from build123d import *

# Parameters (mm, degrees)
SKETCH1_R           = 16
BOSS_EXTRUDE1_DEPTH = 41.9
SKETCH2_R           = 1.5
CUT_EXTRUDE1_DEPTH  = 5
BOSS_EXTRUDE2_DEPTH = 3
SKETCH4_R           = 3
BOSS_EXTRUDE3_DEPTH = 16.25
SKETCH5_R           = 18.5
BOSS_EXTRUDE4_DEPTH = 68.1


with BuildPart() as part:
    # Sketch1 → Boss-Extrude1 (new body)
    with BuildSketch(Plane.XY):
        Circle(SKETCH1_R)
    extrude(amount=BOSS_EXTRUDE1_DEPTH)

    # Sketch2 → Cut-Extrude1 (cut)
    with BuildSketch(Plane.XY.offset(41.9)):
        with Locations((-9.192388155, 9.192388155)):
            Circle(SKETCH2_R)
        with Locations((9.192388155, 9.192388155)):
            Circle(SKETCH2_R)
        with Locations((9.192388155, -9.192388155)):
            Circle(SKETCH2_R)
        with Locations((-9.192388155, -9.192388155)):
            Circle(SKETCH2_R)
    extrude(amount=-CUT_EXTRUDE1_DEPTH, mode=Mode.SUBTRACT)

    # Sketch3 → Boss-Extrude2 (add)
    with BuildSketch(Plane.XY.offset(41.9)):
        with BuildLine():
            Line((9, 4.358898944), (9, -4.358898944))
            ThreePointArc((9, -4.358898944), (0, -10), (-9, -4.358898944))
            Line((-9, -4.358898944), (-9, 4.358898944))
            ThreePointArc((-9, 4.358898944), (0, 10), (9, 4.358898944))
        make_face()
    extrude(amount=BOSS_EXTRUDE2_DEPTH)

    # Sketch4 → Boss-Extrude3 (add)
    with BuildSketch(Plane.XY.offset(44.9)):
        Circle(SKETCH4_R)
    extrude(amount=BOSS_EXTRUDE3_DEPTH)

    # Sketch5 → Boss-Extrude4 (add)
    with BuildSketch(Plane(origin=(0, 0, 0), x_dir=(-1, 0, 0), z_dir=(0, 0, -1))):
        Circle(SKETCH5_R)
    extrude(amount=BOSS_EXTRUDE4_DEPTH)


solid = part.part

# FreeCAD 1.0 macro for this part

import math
import FreeCAD as App
import Part
import Sketcher

doc = App.newDocument("Part")
body = doc.addObject("PartDesign::Body", "Body")

# Sketch on XY plane
sketch1 = body.newObject("Sketcher::SketchObject", "Sketch")
sketch1.AttachmentSupport = (doc.getObject("XY_Plane"), [""])
sketch1.MapMode = "FlatFace"
sketch1.addGeometry(Part.Circle(App.Vector(0, 0, 0), App.Vector(0, 0, 1), 16), False)
sketch1.addConstraint([
    Sketcher.Constraint("Coincident", 0, 3, -1, 1),
    Sketcher.Constraint("Diameter", 0, 32.0),
])
pad1 = body.newObject("PartDesign::Pad", "Pad")
pad1.Profile = sketch1
pad1.Length = 41.9

# Sketch on XY plane
sketch2 = body.newObject("Sketcher::SketchObject", "Sketch001")
sketch2.AttachmentSupport = (doc.getObject("XY_Plane"), [""])
sketch2.MapMode = "FlatFace"
sketch2.AttachmentOffset = App.Placement(App.Vector(0, 0, 41.9), App.Rotation())
sketch2.addGeometry([
    Part.Circle(App.Vector(-9.192388, 9.192388, 0), App.Vector(0, 0, 1), 1.5),
    Part.Circle(App.Vector(9.192388, 9.192388, 0), App.Vector(0, 0, 1), 1.5),
    Part.Circle(App.Vector(9.192388, -9.192388, 0), App.Vector(0, 0, 1), 1.5),
    Part.Circle(App.Vector(-9.192388, -9.192388, 0), App.Vector(0, 0, 1), 1.5),
], False)
sketch2.addConstraint([
    Sketcher.Constraint("Equal", 0, 1),
    Sketcher.Constraint("Equal", 1, 2),
    Sketcher.Constraint("Equal", 2, 3),
    Sketcher.Constraint("Symmetric", 0, 3, 2, 3, -1, 1),
    Sketcher.Constraint("Symmetric", 1, 3, 3, 3, -1, 1),
    Sketcher.Constraint("Symmetric", 0, 3, 1, 3, -2),
    Sketcher.Constraint("Diameter", 0, 3.0),
    Sketcher.Constraint("DistanceX", 0, 3, -1, 1, 9.192388),
    Sketcher.Constraint("DistanceY", -1, 1, 0, 3, 9.192388),
])
pocket1 = body.newObject("PartDesign::Pocket", "Pocket")
pocket1.Profile = sketch2
pocket1.Length = 5

# Sketch on XY plane
sketch3 = body.newObject("Sketcher::SketchObject", "Sketch002")
sketch3.AttachmentSupport = (doc.getObject("XY_Plane"), [""])
sketch3.MapMode = "FlatFace"
sketch3.AttachmentOffset = App.Placement(App.Vector(0, 0, 41.9), App.Rotation())
sketch3.addGeometry([
    Part.LineSegment(App.Vector(9, -4.358899, 0), App.Vector(9, 4.358899, 0)),
    Part.ArcOfCircle(Part.Circle(App.Vector(0, 0, 0), App.Vector(0, 0, 1), 10), math.radians(25.841933), math.radians(154.158067)),
    Part.LineSegment(App.Vector(-9, 4.358899, 0), App.Vector(-9, -4.358899, 0)),
    Part.ArcOfCircle(Part.Circle(App.Vector(0, 0, 0), App.Vector(0, 0, 1), 10), math.radians(-154.158067), math.radians(-25.841933)),
], False)
sketch3.addConstraint([
    Sketcher.Constraint("Coincident", 0, 2, 1, 1),
    Sketcher.Constraint("Coincident", 1, 2, 2, 1),
    Sketcher.Constraint("Coincident", 2, 2, 3, 1),
    Sketcher.Constraint("Coincident", 3, 2, 0, 1),
    Sketcher.Constraint("Vertical", 0),
    Sketcher.Constraint("Vertical", 2),
    Sketcher.Constraint("Coincident", 1, 3, -1, 1),
    Sketcher.Constraint("Coincident", 3, 3, -1, 1),
    Sketcher.Constraint("Equal", 1, 3),
    Sketcher.Constraint("Horizontal", 0, 2, 1, 2),
    Sketcher.Constraint("Radius", 1, 10.0),
    Sketcher.Constraint("DistanceX", -1, 1, 0, 2, 9.0),
])
pad2 = body.newObject("PartDesign::Pad", "Pad001")
pad2.Profile = sketch3
pad2.Length = 3

# Sketch on XY plane
sketch4 = body.newObject("Sketcher::SketchObject", "Sketch003")
sketch4.AttachmentSupport = (doc.getObject("XY_Plane"), [""])
sketch4.MapMode = "FlatFace"
sketch4.AttachmentOffset = App.Placement(App.Vector(0, 0, 44.9), App.Rotation())
sketch4.addGeometry(Part.Circle(App.Vector(0, 0, 0), App.Vector(0, 0, 1), 3), False)
sketch4.addConstraint([
    Sketcher.Constraint("Coincident", 0, 3, -1, 1),
    Sketcher.Constraint("Diameter", 0, 6.0),
])
pad3 = body.newObject("PartDesign::Pad", "Pad002")
pad3.Profile = sketch4
pad3.Length = 16.25

# Sketch on XY plane
sketch5 = body.newObject("Sketcher::SketchObject", "Sketch004")
sketch5.AttachmentSupport = (doc.getObject("XY_Plane"), [""])
sketch5.MapMode = "FlatFace"
sketch5.addGeometry(Part.Circle(App.Vector(0, 0, 0), App.Vector(0, 0, 1), 18.5), False)
sketch5.addConstraint([
    Sketcher.Constraint("Coincident", 0, 3, -1, 1),
    Sketcher.Constraint("Diameter", 0, 37.0),
])
pad4 = body.newObject("PartDesign::Pad", "Pad003")
pad4.Profile = sketch5
pad4.Length = 68.1
pad4.Reversed = True

doc.recompute()
